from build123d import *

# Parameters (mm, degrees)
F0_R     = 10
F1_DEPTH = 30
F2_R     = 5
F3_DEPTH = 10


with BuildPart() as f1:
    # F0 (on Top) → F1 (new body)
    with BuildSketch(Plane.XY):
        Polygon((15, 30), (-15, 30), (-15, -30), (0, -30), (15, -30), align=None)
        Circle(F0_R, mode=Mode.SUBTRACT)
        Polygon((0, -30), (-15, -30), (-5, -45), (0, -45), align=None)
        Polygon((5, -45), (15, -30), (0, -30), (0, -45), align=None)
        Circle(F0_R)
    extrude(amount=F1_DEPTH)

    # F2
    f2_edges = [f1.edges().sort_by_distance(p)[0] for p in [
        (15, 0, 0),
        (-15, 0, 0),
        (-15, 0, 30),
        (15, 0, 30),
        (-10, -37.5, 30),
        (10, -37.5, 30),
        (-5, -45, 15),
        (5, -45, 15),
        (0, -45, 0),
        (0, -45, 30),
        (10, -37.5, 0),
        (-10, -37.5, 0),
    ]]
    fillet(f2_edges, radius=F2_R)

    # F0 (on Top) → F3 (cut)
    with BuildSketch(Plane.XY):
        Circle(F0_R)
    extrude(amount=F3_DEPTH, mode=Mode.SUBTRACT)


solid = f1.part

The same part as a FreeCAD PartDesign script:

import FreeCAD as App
import Part
import Sketcher
Q = App.Units.Quantity


def edges_at(feature, points):
    """Names of the edges that pass closest to the given points."""
    edges = feature.Shape.Edges
    near = lambda p: min(range(len(edges)), key=lambda i: edges[i].distToShape(Part.Vertex(*p))[0])
    return sorted({f"Edge{near(p) + 1}" for p in points})

doc = App.newDocument("Part")
params = doc.addObject("Spreadsheet::Sheet", "Params")
for row, (alias, value) in enumerate([
    ("sketch1_width", "30 mm"),
    ("sketch1_width2", "10 mm"),
    ("sketch1_height", "60 mm"),
    ("pad1_length", "30 mm"),
    ("fillet_radius", "5 mm"),
    ("sketch2_diameter", "20 mm"),
    ("pocket1_length", "10 mm"),
], start=1):
    params.set(f"A{row}", alias)
    params.set(f"B{row}", "=" + value)
    params.setAlias(f"B{row}", alias)

body = doc.addObject("PartDesign::Body", "Body")

sketch1 = body.newObject("Sketcher::SketchObject", "Sketch")
sketch1.AttachmentSupport = (doc.getObject("XY_Plane"), [""])
sketch1.MapMode = "FlatFace"
sketch1.addGeometry([
    Part.LineSegment(App.Vector(15, 30, 0), App.Vector(-15, 30, 0)),
    Part.LineSegment(App.Vector(-15, 30, 0), App.Vector(-15, -30, 0)),
    Part.LineSegment(App.Vector(-15, -30, 0), App.Vector(-5, -45, 0)),
    Part.LineSegment(App.Vector(-5, -45, 0), App.Vector(5, -45, 0)),
    Part.LineSegment(App.Vector(5, -45, 0), App.Vector(15, -30, 0)),
    Part.LineSegment(App.Vector(15, -30, 0), App.Vector(15, 30, 0)),
], False)
sketch1.addConstraint([
    Sketcher.Constraint("Coincident", 0, 2, 1, 1),
    Sketcher.Constraint("Coincident", 1, 2, 2, 1),
    Sketcher.Constraint("Coincident", 2, 2, 3, 1),
    Sketcher.Constraint("Coincident", 3, 2, 4, 1),
    Sketcher.Constraint("Coincident", 4, 2, 5, 1),
    Sketcher.Constraint("Coincident", 5, 2, 0, 1),
    Sketcher.Constraint("Horizontal", 0),
    Sketcher.Constraint("Vertical", 1),
    Sketcher.Constraint("Horizontal", 3),
    Sketcher.Constraint("Vertical", 5),
    Sketcher.Constraint("Symmetric", 0, 2, 4, 2, -1, 1),
    Sketcher.Constraint("Horizontal", 1, 2, 4, 2),
    Sketcher.Constraint("Equal", 2, 4),
    Sketcher.Constraint("DistanceX", 0, 2, 0, 1, Q("30 mm")),
    Sketcher.Constraint("DistanceX", 3, 1, 3, 2, Q("10 mm")),
    Sketcher.Constraint("DistanceY", 1, 2, 1, 1, Q("60 mm")),
    Sketcher.Constraint("DistanceY", 2, 2, -1, 1, Q("45 mm")),
])
sketch1.setExpression("Constraints[13]", "Params.sketch1_width")
sketch1.setExpression("Constraints[14]", "Params.sketch1_width2")
sketch1.setExpression("Constraints[15]", "Params.sketch1_height")
pad1 = body.newObject("PartDesign::Pad", "Pad")
pad1.Profile = sketch1
pad1.setExpression("Length", "Params.pad1_length")
doc.recompute()

fillet = body.newObject("PartDesign::Fillet", "Fillet")
fillet.Base = (pad1, edges_at(pad1, [
    (15, 0, 0),
    (-15, 0, 0),
    (-15, 0, 30),
    (15, 0, 30),
    (-10, -37.5, 30),
    (10, -37.5, 30),
    (-5, -45, 15),
    (5, -45, 15),
    (0, -45, 0),
    (0, -45, 30),
    (10, -37.5, 0),
    (-10, -37.5, 0),
]))
fillet.setExpression("Radius", "Params.fillet_radius")

sketch2 = body.newObject("Sketcher::SketchObject", "Sketch001")
sketch2.AttachmentSupport = (doc.getObject("XY_Plane"), [""])
sketch2.MapMode = "FlatFace"
sketch2.addGeometry(Part.Circle(App.Vector(0, 0, 0), App.Vector(0, 0, 1), 10), False)
sketch2.addConstraint([
    Sketcher.Constraint("Coincident", 0, 3, -1, 1),
    Sketcher.Constraint("Diameter", 0, Q("20 mm")),
])
sketch2.setExpression("Constraints[1]", "Params.sketch2_diameter")
pocket1 = body.newObject("PartDesign::Pocket", "Pocket")
pocket1.Profile = sketch2
pocket1.setExpression("Length", "Params.pocket1_length")
pocket1.Reversed = True

doc.recompute()
